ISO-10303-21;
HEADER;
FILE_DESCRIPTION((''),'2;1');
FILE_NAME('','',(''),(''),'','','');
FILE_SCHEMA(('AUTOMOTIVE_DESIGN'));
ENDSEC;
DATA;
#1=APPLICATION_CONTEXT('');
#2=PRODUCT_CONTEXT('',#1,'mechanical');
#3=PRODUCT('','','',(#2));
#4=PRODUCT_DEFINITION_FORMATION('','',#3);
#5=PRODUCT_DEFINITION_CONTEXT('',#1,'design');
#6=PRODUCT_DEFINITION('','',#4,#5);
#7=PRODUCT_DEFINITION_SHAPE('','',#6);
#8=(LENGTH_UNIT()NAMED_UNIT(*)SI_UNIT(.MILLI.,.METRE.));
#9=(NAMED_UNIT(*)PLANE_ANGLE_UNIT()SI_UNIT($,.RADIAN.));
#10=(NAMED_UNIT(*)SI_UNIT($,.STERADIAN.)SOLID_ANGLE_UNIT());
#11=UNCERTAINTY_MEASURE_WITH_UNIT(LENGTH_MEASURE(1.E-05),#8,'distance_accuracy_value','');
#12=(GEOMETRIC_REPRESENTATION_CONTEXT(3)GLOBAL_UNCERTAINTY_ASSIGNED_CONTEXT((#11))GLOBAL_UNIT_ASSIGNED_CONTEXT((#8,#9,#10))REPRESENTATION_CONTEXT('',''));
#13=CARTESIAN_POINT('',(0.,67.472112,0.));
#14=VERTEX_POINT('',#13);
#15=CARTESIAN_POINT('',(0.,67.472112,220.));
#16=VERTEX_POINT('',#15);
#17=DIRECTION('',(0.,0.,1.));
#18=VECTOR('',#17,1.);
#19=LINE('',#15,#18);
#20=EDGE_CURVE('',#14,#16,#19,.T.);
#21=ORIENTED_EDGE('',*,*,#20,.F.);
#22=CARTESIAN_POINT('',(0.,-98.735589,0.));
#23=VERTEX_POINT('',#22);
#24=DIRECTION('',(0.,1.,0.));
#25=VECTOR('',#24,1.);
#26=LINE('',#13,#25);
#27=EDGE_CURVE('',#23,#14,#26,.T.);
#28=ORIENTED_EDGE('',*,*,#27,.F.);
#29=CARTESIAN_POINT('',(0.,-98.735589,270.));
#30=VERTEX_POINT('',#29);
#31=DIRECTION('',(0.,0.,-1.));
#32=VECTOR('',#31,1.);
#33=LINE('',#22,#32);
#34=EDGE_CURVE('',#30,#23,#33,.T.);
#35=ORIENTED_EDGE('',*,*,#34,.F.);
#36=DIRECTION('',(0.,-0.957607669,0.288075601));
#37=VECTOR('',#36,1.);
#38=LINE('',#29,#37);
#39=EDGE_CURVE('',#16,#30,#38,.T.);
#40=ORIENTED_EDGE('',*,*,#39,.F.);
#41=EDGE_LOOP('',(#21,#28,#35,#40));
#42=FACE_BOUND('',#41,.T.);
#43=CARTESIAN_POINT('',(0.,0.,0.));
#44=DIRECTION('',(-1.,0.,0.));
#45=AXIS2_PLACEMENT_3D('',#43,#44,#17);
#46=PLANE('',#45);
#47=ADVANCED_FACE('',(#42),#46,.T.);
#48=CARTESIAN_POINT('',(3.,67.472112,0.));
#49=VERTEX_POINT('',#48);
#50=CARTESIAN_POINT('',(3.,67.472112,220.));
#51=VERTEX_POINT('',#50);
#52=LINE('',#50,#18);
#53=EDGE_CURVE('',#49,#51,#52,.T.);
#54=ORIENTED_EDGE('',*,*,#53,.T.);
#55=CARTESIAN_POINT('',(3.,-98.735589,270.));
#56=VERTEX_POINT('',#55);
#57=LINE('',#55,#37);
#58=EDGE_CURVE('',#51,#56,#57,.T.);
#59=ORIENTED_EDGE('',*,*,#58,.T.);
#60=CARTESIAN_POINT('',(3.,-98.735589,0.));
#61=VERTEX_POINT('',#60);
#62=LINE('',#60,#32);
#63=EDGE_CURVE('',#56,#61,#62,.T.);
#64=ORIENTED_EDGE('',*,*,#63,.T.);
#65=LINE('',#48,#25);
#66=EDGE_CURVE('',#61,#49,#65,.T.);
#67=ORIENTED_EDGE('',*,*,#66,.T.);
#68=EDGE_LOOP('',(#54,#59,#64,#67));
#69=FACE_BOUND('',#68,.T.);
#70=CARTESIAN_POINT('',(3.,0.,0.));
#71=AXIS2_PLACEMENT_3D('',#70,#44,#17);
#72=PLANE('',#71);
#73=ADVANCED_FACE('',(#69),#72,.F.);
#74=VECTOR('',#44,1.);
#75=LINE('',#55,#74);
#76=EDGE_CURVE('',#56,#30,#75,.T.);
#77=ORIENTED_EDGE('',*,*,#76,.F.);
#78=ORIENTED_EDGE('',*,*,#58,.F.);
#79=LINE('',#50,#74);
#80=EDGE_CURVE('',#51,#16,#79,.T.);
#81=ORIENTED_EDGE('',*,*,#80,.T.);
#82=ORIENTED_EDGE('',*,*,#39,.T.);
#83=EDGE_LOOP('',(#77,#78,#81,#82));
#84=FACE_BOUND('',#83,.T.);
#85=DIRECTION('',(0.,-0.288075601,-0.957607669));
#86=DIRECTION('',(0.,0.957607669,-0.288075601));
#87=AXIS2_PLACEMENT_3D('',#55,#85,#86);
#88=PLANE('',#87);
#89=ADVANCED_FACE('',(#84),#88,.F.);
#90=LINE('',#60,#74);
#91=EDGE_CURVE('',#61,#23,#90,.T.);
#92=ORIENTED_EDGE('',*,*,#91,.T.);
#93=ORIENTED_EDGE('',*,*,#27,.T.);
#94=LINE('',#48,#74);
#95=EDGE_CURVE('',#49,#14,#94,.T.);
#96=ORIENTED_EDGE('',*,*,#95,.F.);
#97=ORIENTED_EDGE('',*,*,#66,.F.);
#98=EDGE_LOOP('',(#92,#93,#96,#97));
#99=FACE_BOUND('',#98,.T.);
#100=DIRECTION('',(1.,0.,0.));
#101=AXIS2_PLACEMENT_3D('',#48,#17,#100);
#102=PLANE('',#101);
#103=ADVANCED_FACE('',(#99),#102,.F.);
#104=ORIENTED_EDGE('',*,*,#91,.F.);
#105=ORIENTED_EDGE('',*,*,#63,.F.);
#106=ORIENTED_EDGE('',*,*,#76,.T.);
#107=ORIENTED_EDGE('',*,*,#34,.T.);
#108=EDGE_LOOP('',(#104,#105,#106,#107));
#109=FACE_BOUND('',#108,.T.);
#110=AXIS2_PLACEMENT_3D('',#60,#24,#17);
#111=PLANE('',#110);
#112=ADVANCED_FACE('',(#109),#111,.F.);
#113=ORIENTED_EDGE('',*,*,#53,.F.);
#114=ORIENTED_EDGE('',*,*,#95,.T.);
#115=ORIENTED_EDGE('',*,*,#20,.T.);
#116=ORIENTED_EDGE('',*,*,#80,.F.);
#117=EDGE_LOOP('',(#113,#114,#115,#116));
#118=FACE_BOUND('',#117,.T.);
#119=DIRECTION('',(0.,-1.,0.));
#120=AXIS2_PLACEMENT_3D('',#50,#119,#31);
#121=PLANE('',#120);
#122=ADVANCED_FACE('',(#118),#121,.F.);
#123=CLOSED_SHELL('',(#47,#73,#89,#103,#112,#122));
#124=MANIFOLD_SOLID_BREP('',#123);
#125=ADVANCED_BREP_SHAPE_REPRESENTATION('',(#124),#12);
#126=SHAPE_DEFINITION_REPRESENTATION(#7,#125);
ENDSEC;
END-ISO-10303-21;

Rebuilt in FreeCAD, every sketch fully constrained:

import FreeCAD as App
import Part
import Sketcher
Q = App.Units.Quantity


def add_polygon(sketch, points):
    """Adds a closed chain of lines whose ends are joined by coincident constraints."""
    first, n = sketch.GeometryCount, len(points)
    for a, b in zip(points, points[1:] + points[:1]):
        sketch.addGeometry(Part.LineSegment(App.Vector(*a, 0), App.Vector(*b, 0)), False)
    for i in range(n):
        sketch.addConstraint(Sketcher.Constraint("Coincident", first + i, 2, first + (i + 1) % n, 1))

doc = App.newDocument("Part")
body = doc.addObject("PartDesign::Body", "Body")

sketch1 = body.newObject("Sketcher::SketchObject", "Sketch")
sketch1.AttachmentSupport = (doc.getObject("YZ_Plane"), [""])
sketch1.MapMode = "FlatFace"
add_polygon(sketch1, [(67, 0), (67, 220), (-99, 270), (-99, 0)])
sketch1.addConstraint([
    Sketcher.Constraint("Vertical", 0),
    Sketcher.Constraint("Vertical", 2),
    Sketcher.Constraint("Horizontal", 3),
    Sketcher.Constraint("PointOnObject", 2, 2, -1),
    Sketcher.Constraint("DistanceY", 0, 1, 0, 2, Q("220 mm")),
    Sketcher.Constraint("DistanceY", 2, 2, 2, 1, Q("270 mm")),
    Sketcher.Constraint("DistanceX", 3, 1, 3, 2, Q("166.207701 mm")),
    Sketcher.Constraint("DistanceX", 1, 2, -1, 1, Q("98.735589 mm")),
])
pad1 = body.newObject("PartDesign::Pad", "Pad")
pad1.Profile = sketch1
pad1.Length = 3

doc.recompute()
